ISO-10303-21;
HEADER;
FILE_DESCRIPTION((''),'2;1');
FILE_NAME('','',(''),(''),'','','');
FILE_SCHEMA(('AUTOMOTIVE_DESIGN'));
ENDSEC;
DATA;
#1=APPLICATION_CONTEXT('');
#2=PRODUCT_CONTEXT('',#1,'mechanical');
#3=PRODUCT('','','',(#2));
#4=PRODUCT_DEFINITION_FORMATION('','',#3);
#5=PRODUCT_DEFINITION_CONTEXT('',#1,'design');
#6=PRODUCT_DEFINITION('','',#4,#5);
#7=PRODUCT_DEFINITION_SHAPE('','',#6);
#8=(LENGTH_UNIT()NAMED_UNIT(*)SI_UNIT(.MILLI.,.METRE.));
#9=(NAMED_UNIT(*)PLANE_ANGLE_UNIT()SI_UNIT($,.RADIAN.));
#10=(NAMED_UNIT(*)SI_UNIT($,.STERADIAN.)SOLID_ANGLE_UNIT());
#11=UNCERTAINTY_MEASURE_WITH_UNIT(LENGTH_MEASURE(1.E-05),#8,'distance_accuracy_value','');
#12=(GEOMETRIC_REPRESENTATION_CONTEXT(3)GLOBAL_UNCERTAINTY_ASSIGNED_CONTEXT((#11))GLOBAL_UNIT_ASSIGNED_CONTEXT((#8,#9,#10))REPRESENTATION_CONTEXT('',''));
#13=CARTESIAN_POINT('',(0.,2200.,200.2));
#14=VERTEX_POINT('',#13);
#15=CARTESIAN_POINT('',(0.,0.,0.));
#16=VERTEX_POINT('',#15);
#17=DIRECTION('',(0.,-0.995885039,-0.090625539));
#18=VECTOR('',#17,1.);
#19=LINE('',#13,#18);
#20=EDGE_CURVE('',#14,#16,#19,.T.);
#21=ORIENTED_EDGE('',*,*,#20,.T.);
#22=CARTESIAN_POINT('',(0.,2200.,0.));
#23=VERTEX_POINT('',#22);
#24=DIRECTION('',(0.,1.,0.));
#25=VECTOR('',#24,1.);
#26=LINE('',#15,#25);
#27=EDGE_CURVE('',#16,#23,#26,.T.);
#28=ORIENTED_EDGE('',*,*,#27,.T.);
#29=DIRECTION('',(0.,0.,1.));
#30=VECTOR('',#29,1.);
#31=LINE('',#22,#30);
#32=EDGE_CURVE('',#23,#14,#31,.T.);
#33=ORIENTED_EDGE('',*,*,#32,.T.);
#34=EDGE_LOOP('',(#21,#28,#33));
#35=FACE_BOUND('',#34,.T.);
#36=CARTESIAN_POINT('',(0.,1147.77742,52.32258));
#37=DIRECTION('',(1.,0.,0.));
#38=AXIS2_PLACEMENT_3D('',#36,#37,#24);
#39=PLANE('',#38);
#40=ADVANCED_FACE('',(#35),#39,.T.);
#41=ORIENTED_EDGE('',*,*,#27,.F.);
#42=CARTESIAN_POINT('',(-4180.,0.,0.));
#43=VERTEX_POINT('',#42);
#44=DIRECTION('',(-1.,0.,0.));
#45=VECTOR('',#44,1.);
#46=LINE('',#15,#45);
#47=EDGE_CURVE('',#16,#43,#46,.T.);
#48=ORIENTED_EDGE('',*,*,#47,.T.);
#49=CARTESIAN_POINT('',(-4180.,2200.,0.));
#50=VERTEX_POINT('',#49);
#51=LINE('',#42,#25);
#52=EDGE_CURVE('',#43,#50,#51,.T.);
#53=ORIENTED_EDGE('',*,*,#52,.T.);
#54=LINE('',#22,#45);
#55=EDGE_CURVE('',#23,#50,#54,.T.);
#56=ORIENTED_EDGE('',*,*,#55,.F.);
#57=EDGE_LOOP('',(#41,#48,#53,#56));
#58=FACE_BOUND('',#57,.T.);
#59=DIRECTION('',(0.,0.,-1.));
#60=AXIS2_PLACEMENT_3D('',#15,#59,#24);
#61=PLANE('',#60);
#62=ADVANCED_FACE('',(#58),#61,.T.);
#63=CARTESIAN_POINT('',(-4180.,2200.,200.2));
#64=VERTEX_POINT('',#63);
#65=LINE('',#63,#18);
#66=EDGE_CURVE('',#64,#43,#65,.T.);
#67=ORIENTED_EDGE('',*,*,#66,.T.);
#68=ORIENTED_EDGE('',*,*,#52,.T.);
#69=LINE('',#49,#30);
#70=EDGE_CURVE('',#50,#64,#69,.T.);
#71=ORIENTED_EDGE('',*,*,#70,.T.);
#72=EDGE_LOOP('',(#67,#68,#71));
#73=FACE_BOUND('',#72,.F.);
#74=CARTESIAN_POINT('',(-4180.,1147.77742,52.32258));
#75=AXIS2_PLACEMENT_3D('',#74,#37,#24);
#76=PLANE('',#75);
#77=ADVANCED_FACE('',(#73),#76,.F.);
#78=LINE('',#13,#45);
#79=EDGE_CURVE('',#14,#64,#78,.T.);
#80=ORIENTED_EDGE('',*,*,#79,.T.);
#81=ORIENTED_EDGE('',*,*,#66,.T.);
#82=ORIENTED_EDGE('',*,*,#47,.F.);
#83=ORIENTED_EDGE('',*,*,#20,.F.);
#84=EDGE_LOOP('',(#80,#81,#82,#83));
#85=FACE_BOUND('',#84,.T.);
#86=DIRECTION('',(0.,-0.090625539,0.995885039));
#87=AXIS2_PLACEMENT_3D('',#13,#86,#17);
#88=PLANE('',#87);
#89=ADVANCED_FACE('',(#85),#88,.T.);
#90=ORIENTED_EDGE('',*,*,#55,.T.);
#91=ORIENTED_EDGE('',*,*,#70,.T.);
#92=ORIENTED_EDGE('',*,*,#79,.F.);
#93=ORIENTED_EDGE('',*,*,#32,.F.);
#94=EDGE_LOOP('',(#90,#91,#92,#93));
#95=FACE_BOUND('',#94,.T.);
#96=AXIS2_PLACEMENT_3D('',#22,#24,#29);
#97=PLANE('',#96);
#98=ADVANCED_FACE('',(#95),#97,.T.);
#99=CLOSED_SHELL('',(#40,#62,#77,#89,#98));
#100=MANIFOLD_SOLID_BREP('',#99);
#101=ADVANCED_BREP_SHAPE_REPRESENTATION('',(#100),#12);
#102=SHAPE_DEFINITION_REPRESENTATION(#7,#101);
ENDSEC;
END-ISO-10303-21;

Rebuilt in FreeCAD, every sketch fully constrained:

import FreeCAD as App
import Part
import Sketcher
Q = App.Units.Quantity


def add_polygon(sketch, points):
    """Adds a closed chain of lines whose ends are joined by coincident constraints."""
    first, n = sketch.GeometryCount, len(points)
    for a, b in zip(points, points[1:] + points[:1]):
        sketch.addGeometry(Part.LineSegment(App.Vector(*a, 0), App.Vector(*b, 0)), False)
    for i in range(n):
        sketch.addConstraint(Sketcher.Constraint("Coincident", first + i, 2, first + (i + 1) % n, 1))

doc = App.newDocument("Part")
body = doc.addObject("PartDesign::Body", "Body")

# Sketch on YZ plane
sketch1 = body.newObject("Sketcher::SketchObject", "Sketch")
sketch1.AttachmentSupport = (doc.getObject("YZ_Plane"), [""])
sketch1.MapMode = "FlatFace"
add_polygon(sketch1, [(2200, 200.2), (0, 0), (2200, 0)])  # lines 0-2
sketch1.addConstraint([
    Sketcher.Constraint("Horizontal", 1),
    Sketcher.Constraint("Vertical", 2),
    Sketcher.Constraint("Coincident", 0, 2, -1, 1),
    Sketcher.Constraint("DistanceX", 1, 1, 1, 2, Q("2200 mm")),
    Sketcher.Constraint("DistanceY", 2, 1, 2, 2, Q("200.2 mm")),
])
pad1 = body.newObject("PartDesign::Pad", "Pad")
pad1.Profile = sketch1
pad1.Length = 4180
pad1.Reversed = True

doc.recompute()
